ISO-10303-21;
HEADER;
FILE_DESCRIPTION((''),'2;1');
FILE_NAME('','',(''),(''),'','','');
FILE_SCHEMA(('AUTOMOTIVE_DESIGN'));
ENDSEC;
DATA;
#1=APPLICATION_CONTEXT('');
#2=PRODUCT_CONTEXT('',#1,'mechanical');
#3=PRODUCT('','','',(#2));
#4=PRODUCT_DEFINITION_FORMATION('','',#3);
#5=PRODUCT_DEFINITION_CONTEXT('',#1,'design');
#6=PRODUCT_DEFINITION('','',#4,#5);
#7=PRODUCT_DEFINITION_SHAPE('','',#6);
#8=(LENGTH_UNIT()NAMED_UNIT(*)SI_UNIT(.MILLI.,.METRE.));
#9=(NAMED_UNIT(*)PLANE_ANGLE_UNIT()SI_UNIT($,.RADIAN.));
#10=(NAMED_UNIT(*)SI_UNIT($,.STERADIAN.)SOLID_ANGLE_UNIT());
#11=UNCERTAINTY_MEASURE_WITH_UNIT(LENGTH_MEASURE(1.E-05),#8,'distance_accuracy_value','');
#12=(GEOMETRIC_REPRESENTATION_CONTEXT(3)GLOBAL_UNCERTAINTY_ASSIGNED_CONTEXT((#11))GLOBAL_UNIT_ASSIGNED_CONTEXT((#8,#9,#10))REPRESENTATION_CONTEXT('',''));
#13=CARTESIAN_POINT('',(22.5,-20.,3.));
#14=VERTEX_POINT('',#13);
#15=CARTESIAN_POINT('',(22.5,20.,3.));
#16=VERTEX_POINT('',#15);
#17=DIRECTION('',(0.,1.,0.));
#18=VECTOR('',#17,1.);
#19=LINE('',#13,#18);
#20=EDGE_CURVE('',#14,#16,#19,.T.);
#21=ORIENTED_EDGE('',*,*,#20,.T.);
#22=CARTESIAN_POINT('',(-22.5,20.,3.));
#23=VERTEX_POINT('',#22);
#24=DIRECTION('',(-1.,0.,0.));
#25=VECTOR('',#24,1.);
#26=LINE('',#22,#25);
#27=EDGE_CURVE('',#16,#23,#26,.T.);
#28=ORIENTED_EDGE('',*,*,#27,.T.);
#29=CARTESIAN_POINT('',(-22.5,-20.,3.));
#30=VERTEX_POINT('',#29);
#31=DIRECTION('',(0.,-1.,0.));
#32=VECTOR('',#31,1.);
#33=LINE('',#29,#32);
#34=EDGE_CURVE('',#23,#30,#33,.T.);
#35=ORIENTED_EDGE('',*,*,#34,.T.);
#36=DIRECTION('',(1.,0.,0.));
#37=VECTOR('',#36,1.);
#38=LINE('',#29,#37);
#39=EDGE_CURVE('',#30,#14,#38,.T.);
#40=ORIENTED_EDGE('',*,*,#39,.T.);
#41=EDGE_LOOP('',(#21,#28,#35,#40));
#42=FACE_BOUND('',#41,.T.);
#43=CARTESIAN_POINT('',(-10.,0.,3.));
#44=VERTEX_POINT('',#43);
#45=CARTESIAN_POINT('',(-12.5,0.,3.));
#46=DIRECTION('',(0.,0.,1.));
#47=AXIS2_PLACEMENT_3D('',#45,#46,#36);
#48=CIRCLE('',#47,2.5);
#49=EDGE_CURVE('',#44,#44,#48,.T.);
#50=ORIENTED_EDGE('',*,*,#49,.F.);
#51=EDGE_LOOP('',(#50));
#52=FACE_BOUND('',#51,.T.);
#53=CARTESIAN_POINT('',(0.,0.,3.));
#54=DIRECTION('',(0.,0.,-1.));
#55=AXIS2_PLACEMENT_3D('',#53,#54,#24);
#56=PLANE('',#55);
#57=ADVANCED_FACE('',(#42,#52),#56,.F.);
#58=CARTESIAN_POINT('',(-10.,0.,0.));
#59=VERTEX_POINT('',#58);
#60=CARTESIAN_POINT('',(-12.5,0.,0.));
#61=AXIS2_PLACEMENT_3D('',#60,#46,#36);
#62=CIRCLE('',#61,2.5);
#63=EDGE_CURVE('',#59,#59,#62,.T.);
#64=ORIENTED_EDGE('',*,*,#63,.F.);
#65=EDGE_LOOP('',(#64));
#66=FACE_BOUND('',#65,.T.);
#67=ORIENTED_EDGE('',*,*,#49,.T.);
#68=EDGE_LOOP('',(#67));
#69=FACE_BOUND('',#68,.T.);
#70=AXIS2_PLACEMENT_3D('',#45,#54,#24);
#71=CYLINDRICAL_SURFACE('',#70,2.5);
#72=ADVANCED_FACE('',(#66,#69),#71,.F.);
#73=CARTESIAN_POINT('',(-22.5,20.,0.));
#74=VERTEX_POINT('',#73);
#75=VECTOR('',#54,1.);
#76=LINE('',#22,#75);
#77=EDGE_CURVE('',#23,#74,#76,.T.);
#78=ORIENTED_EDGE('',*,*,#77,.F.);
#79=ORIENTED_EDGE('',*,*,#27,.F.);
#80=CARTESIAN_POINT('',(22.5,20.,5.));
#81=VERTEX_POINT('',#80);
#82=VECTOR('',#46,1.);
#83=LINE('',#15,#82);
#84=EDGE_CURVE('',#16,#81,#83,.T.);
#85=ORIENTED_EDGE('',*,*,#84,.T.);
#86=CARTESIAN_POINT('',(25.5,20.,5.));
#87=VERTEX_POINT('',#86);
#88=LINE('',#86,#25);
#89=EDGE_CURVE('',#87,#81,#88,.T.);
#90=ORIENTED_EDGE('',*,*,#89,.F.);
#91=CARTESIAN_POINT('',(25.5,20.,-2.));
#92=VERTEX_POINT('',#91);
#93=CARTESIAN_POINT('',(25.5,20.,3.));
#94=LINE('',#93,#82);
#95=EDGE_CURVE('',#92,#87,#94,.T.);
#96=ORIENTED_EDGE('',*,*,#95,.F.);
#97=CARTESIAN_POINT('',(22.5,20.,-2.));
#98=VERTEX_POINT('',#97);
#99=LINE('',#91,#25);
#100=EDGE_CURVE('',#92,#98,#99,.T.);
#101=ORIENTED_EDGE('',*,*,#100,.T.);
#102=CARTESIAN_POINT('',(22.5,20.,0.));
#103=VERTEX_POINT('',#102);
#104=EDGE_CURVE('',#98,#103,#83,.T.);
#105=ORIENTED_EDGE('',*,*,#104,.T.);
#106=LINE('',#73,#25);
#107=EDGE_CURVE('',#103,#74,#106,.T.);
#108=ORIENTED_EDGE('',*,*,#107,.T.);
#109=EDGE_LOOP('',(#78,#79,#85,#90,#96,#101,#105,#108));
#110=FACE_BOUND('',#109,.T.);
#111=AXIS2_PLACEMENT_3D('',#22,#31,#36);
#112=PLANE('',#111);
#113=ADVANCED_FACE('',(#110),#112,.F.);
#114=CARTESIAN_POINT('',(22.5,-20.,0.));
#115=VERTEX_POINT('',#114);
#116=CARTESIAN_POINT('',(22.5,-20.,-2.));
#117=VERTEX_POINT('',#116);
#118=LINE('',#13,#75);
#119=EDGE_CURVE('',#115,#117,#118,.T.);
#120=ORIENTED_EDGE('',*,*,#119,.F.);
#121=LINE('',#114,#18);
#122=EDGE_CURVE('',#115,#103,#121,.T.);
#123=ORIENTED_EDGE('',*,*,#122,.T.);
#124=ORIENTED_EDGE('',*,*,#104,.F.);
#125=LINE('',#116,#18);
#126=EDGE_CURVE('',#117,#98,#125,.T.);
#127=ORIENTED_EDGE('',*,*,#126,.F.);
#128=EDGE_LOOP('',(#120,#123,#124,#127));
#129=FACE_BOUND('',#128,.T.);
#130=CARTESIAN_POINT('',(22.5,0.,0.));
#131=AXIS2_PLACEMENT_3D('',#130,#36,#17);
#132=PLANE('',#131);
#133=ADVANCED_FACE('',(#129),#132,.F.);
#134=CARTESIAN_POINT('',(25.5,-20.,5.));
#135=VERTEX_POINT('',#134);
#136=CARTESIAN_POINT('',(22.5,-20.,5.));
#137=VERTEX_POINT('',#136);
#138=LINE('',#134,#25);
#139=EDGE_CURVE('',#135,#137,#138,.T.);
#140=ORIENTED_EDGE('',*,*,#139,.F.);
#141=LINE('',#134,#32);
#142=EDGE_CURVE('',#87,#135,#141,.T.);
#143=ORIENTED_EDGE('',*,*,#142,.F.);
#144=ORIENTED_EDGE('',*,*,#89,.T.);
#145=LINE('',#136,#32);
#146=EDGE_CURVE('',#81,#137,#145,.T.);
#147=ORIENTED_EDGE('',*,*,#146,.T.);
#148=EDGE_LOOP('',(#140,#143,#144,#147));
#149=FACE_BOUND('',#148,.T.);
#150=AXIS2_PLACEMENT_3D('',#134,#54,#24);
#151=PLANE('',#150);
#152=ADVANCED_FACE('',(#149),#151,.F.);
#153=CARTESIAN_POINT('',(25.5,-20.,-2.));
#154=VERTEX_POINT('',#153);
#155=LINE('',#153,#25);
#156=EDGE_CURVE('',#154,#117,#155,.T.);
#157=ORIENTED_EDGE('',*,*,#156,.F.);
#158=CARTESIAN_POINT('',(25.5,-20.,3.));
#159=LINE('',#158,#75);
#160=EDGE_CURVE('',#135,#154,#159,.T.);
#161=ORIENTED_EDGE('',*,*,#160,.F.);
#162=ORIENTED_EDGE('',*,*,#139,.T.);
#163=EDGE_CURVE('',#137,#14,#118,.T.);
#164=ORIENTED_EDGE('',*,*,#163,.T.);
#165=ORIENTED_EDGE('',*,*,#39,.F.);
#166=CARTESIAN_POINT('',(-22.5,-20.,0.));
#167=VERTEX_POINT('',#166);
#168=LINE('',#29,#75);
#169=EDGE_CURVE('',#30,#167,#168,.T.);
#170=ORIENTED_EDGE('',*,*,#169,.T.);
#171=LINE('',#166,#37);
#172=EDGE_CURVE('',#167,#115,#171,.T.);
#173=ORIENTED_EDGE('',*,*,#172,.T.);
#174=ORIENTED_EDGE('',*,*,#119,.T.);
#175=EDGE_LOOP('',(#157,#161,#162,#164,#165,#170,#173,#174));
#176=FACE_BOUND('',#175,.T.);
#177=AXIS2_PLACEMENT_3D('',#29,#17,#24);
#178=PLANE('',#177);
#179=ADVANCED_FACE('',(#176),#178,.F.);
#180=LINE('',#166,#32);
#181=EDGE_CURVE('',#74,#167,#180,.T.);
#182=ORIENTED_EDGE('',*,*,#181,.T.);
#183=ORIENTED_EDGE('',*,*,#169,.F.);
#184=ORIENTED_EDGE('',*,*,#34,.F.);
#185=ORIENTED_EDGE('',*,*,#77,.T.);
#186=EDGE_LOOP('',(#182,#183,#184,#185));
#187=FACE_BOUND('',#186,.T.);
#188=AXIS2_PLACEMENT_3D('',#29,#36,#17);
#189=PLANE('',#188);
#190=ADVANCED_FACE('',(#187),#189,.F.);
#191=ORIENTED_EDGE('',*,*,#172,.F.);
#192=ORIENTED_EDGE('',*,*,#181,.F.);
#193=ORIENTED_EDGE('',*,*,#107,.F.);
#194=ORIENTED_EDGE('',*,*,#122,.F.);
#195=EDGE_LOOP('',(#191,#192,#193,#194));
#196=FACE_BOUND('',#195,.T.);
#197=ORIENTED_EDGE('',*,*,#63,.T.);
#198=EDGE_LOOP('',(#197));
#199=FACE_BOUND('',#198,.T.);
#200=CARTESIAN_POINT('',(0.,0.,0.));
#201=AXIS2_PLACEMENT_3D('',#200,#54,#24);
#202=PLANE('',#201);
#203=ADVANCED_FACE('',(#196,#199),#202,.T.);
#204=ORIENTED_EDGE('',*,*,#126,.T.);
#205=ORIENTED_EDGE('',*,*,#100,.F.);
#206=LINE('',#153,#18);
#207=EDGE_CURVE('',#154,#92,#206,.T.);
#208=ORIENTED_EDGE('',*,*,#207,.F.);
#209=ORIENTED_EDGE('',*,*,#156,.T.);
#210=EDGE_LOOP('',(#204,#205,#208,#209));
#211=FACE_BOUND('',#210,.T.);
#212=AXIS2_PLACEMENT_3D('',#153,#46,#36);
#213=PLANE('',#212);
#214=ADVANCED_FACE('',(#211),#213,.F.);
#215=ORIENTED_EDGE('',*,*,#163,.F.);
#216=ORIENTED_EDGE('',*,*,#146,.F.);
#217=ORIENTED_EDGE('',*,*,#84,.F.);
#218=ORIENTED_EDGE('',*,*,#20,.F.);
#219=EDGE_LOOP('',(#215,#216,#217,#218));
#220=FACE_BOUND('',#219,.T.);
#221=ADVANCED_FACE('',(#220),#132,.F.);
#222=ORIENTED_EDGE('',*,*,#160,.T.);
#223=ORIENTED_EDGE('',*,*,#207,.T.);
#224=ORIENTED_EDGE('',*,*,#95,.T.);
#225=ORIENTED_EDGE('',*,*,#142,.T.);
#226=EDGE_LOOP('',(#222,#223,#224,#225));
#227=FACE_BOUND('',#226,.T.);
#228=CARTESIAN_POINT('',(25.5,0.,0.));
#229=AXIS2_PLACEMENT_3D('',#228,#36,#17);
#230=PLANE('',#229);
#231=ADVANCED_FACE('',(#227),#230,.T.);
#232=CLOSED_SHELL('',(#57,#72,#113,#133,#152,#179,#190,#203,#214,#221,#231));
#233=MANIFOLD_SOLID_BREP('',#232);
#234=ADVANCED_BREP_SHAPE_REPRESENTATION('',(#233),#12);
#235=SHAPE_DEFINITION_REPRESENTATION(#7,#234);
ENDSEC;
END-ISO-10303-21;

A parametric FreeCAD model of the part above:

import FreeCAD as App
import Part
import Sketcher
from FreeCAD import Vector

doc = App.newDocument("Part")
params = doc.addObject("Spreadsheet::Sheet", "Params")
for row, (alias, value) in enumerate([
    ("sketch1_diameter", "5 mm"),
    ("sketch1_width", "45 mm"),
    ("sketch1_height", "40 mm"),
    ("pad1_length", "3 mm"),
    ("sketch2_width", "40 mm"),
    ("sketch2_height", "7 mm"),
    ("pad2_length", "3 mm"),
], start=1):
    params.set(f"A{row}", alias)
    params.set(f"B{row}", "=" + value)
    params.setAlias(f"B{row}", alias)

body = doc.addObject("PartDesign::Body", "Body")

sketch1 = body.newObject("Sketcher::SketchObject", "Sketch")
sketch1.AttachmentSupport = (doc.getObject("XY_Plane"), [""])
sketch1.MapMode = "FlatFace"
sketch1.addGeometry(Part.LineSegment(Vector(-22.5, 20, 0), Vector(-22.5, -20, 0)), False)
sketch1.addGeometry(Part.LineSegment(Vector(-22.5, -20, 0), Vector(22.5, -20, 0)), False)
sketch1.addGeometry(Part.LineSegment(Vector(22.5, -20, 0), Vector(22.5, 20, 0)), False)
sketch1.addGeometry(Part.LineSegment(Vector(22.5, 20, 0), Vector(-22.5, 20, 0)), False)
sketch1.addGeometry(Part.Circle(Vector(-12.5, 0, 0), Vector(0, 0, 1), 2.5), False)
sketch1.addConstraint(Sketcher.Constraint("Coincident", 0, 2, 1, 1))
sketch1.addConstraint(Sketcher.Constraint("Coincident", 1, 2, 2, 1))
sketch1.addConstraint(Sketcher.Constraint("Coincident", 2, 2, 3, 1))
sketch1.addConstraint(Sketcher.Constraint("Coincident", 3, 2, 0, 1))
sketch1.addConstraint(Sketcher.Constraint("Vertical", 0))
sketch1.addConstraint(Sketcher.Constraint("Horizontal", 1))
sketch1.addConstraint(Sketcher.Constraint("Vertical", 2))
sketch1.addConstraint(Sketcher.Constraint("Horizontal", 3))
sketch1.addConstraint(Sketcher.Constraint("Symmetric", 0, 2, 2, 2, -1, 1))
sketch1.addConstraint(Sketcher.Constraint("PointOnObject", 4, 3, -1))
sketch1.addConstraint(Sketcher.Constraint("Diameter", 4, 5.0))
sketch1.addConstraint(Sketcher.Constraint("DistanceX", 1, 1, 1, 2, 45.0))
sketch1.addConstraint(Sketcher.Constraint("DistanceY", 0, 2, 0, 1, 40.0))
sketch1.addConstraint(Sketcher.Constraint("DistanceX", 0, 2, 4, 3, 10.0))
sketch1.setExpression("Constraints[10]", "Params.sketch1_diameter")
sketch1.setExpression("Constraints[11]", "Params.sketch1_width")
sketch1.setExpression("Constraints[12]", "Params.sketch1_height")
pad1 = body.newObject("PartDesign::Pad", "Pad")
pad1.Profile = sketch1
pad1.setExpression("Length", "Params.pad1_length")

sketch2 = body.newObject("Sketcher::SketchObject", "Sketch001")
sketch2.AttachmentSupport = (doc.getObject("YZ_Plane"), [""])
sketch2.MapMode = "FlatFace"
sketch2.AttachmentOffset = App.Placement(Vector(0, 0, 22.5), App.Rotation())
sketch2.addGeometry(Part.LineSegment(Vector(20, 5, 0), Vector(-20, 5, 0)), False)
sketch2.addGeometry(Part.LineSegment(Vector(-20, 5, 0), Vector(-20, -2, 0)), False)
sketch2.addGeometry(Part.LineSegment(Vector(-20, -2, 0), Vector(20, -2, 0)), False)
sketch2.addGeometry(Part.LineSegment(Vector(20, -2, 0), Vector(20, 5, 0)), False)
sketch2.addConstraint(Sketcher.Constraint("Coincident", 0, 2, 1, 1))
sketch2.addConstraint(Sketcher.Constraint("Coincident", 1, 2, 2, 1))
sketch2.addConstraint(Sketcher.Constraint("Coincident", 2, 2, 3, 1))
sketch2.addConstraint(Sketcher.Constraint("Coincident", 3, 2, 0, 1))
sketch2.addConstraint(Sketcher.Constraint("Horizontal", 0))
sketch2.addConstraint(Sketcher.Constraint("Vertical", 1))
sketch2.addConstraint(Sketcher.Constraint("Horizontal", 2))
sketch2.addConstraint(Sketcher.Constraint("Vertical", 3))
sketch2.addConstraint(Sketcher.Constraint("DistanceX", 0, 2, 0, 1, 40.0))
sketch2.addConstraint(Sketcher.Constraint("DistanceY", 1, 2, 1, 1, 7.0))
sketch2.addConstraint(Sketcher.Constraint("DistanceX", 0, 2, -1, 1, 20.0))
sketch2.addConstraint(Sketcher.Constraint("DistanceY", -1, 1, 0, 2, 5.0))
sketch2.setExpression("Constraints[8]", "Params.sketch2_width")
sketch2.setExpression("Constraints[9]", "Params.sketch2_height")
pad2 = body.newObject("PartDesign::Pad", "Pad001")
pad2.Profile = sketch2
pad2.setExpression("Length", "Params.pad2_length")

doc.recompute()
